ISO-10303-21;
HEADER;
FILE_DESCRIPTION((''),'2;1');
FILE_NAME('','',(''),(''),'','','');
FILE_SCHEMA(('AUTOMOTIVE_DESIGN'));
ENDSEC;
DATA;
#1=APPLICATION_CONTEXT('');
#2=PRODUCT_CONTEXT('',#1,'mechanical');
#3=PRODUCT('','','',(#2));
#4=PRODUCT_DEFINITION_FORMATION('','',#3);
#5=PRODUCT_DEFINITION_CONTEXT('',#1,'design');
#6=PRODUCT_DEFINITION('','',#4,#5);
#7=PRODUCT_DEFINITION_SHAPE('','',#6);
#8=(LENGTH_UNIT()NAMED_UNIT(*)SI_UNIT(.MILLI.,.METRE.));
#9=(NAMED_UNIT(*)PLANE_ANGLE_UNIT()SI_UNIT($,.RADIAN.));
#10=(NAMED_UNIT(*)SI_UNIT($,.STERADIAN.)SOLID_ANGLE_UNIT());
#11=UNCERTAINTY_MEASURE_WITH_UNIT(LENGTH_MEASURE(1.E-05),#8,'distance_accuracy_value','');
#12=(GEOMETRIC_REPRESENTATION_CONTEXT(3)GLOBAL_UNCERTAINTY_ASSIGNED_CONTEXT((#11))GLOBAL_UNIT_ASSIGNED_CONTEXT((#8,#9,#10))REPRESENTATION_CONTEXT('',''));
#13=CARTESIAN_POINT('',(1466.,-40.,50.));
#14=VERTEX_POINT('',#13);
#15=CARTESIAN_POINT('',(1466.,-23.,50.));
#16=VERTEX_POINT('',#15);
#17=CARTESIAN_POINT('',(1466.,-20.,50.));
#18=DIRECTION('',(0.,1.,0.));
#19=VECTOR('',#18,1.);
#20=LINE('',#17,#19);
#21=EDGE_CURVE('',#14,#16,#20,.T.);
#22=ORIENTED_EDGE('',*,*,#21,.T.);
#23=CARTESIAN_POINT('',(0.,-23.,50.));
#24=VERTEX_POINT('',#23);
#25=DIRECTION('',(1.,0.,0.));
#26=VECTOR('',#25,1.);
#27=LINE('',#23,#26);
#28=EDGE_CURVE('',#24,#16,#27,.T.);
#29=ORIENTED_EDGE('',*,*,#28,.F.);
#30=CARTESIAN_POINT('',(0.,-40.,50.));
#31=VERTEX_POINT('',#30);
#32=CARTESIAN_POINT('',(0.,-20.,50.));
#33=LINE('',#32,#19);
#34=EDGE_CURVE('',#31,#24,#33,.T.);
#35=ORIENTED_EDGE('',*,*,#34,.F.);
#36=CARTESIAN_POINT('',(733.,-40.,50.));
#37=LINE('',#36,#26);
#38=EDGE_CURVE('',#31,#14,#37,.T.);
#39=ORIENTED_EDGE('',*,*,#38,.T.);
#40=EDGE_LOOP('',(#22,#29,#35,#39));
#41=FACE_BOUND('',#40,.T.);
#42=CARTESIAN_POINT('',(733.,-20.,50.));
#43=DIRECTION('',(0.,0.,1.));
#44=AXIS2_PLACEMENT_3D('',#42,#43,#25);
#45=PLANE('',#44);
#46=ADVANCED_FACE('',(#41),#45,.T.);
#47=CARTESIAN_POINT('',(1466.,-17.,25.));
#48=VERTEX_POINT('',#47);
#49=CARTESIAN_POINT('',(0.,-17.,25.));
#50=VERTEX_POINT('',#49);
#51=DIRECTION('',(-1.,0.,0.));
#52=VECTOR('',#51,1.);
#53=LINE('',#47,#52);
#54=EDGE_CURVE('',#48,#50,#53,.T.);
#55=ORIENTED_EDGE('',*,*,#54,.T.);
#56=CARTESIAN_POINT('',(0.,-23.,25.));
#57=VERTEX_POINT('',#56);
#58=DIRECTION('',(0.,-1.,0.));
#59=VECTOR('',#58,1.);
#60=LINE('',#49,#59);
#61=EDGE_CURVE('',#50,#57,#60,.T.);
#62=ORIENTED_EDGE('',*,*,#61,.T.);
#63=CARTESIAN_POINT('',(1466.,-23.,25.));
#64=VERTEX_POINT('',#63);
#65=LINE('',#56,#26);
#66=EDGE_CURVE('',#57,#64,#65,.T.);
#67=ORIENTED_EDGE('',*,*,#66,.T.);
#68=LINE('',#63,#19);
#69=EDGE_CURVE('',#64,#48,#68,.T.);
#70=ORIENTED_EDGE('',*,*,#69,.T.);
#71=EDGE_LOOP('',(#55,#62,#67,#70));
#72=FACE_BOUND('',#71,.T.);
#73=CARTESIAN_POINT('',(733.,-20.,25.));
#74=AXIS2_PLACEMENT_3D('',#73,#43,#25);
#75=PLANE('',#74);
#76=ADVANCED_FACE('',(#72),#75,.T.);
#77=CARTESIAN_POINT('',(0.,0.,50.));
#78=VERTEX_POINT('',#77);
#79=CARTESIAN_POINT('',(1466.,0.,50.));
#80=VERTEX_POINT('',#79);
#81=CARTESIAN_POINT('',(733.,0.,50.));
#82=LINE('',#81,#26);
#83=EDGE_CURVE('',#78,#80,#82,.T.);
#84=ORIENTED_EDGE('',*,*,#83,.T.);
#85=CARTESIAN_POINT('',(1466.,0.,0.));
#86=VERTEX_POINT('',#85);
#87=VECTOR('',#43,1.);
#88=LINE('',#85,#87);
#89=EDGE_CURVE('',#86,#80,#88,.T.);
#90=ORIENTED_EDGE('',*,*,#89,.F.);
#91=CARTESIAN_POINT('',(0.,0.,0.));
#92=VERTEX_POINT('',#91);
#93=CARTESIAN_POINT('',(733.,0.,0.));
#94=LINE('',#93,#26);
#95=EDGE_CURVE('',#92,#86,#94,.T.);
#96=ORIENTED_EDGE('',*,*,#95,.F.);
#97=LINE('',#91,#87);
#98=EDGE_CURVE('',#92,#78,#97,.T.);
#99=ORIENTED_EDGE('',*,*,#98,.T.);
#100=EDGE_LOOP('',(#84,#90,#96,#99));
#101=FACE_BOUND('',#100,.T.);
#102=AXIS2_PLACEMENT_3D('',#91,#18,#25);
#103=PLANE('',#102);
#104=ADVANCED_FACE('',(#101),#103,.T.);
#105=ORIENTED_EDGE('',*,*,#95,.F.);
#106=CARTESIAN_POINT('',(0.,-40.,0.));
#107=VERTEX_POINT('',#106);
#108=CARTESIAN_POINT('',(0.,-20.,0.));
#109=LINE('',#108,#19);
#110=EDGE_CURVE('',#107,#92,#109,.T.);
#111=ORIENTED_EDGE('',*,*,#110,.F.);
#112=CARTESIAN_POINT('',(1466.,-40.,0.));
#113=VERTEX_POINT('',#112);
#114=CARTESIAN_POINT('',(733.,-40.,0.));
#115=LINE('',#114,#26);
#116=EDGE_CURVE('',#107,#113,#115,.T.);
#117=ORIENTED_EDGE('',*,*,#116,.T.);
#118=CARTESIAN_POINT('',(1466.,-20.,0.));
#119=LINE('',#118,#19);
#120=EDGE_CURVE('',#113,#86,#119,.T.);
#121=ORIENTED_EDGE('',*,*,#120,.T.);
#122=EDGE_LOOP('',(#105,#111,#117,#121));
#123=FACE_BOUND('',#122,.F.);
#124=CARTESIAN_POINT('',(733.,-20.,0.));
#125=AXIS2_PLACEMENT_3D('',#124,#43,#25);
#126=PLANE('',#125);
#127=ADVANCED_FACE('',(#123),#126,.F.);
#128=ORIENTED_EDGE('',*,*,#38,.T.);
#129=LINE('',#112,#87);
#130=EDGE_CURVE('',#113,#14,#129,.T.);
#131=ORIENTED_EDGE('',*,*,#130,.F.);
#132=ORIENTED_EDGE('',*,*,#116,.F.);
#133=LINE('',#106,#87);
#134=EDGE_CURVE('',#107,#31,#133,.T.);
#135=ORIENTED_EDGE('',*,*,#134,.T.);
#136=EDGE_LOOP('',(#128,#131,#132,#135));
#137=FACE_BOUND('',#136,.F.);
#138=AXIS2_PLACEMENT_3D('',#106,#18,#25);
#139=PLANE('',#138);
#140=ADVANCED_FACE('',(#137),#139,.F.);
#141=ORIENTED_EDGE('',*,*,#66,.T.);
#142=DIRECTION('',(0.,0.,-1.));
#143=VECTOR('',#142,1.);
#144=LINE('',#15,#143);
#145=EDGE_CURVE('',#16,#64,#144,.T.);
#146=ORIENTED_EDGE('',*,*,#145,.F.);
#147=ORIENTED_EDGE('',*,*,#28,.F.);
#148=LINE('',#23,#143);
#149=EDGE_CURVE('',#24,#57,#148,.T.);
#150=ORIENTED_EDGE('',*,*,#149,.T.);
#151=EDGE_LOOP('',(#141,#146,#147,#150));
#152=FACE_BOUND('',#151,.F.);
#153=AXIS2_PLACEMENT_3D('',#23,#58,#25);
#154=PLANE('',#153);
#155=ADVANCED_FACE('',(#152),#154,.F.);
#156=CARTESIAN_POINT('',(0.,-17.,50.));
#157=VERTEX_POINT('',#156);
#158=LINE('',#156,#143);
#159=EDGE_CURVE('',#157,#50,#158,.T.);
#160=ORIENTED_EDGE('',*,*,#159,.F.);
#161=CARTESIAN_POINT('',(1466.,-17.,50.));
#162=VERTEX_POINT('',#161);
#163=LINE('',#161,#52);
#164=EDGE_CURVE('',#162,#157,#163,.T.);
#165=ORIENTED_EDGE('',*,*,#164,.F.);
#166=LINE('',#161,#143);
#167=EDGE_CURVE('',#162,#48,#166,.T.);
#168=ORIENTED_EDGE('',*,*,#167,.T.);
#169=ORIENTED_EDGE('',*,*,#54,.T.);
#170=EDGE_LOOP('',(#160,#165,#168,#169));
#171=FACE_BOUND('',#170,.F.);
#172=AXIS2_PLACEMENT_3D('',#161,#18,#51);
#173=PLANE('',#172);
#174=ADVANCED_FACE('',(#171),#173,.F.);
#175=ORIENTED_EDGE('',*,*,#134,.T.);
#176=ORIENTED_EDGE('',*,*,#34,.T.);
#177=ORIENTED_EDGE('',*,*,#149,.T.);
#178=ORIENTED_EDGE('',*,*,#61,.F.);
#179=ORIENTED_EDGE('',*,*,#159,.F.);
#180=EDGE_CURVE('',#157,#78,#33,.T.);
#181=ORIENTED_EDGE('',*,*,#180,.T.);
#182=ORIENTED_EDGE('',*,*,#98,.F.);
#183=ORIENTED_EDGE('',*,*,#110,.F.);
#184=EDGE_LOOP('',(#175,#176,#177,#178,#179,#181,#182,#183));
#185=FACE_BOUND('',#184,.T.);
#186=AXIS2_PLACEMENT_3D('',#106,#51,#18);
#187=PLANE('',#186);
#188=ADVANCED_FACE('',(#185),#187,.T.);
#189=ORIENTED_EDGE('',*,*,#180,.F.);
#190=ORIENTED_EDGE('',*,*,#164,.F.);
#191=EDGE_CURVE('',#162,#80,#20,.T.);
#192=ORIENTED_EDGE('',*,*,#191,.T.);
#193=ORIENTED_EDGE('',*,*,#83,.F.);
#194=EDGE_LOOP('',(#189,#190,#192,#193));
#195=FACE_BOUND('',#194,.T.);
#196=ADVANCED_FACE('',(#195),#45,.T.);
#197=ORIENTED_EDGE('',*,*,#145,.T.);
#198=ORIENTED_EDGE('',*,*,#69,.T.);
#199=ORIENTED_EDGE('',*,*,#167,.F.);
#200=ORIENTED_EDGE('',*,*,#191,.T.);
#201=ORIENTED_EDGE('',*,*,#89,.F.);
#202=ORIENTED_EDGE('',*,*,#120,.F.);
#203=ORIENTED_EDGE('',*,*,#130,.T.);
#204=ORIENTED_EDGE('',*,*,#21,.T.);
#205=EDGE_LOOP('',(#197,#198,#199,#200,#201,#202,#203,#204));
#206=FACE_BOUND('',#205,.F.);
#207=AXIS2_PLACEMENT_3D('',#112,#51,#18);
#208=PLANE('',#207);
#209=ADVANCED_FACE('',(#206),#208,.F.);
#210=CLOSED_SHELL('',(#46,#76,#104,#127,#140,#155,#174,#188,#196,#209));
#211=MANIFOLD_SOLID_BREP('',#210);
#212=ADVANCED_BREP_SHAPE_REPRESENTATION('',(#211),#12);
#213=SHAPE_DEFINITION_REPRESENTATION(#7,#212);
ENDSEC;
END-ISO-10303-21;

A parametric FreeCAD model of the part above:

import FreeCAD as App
import Part
import Sketcher

V = App.Vector
Q = App.Units.Quantity


def add_polygon(sketch, points):
    """Adds a closed chain of lines whose ends are joined by coincident constraints."""
    first, n = sketch.GeometryCount, len(points)
    for a, b in zip(points, points[1:] + points[:1]):
        sketch.addGeometry(Part.LineSegment(App.Vector(*a, 0), App.Vector(*b, 0)), False)
    for i in range(n):
        sketch.addConstraint(Sketcher.Constraint("Coincident", first + i, 2, first + (i + 1) % n, 1))

doc = App.newDocument("Part")
body = doc.addObject("PartDesign::Body", "Body")

# Sketch on XY plane
sketch1 = body.newObject("Sketcher::SketchObject", "Sketch")
sketch1.AttachmentSupport = (doc.getObject("XY_Plane"), [""])
sketch1.MapMode = "FlatFace"
add_polygon(sketch1, [(0, 0), (0, -40), (1466, -40), (1466, 0)])  # lines 0-3
sketch1.addConstraint([
    Sketcher.Constraint("Vertical", 0),
    Sketcher.Constraint("Horizontal", 1),
    Sketcher.Constraint("Vertical", 2),
    Sketcher.Constraint("Horizontal", 3),
    Sketcher.Constraint("Coincident", 3, 2, -1, 1),
    Sketcher.Constraint("DistanceX", 1, 1, 1, 2, Q("1466 mm")),
    Sketcher.Constraint("DistanceY", 0, 2, 0, 1, Q("40 mm")),
])
pad1 = body.newObject("PartDesign::Pad", "Pad")
pad1.Profile = sketch1
pad1.Length = 50

# Sketch on XY plane
sketch2 = body.newObject("Sketcher::SketchObject", "Sketch001")
sketch2.AttachmentSupport = (doc.getObject("XY_Plane"), [""])
sketch2.MapMode = "FlatFace"
sketch2.AttachmentOffset = App.Placement(V(0, 0, 50), App.Rotation())
add_polygon(sketch2, [(0, -17), (0, -23), (1466, -23), (1466, -17)])  # lines 0-3
sketch2.addConstraint([
    Sketcher.Constraint("Vertical", 0),
    Sketcher.Constraint("Horizontal", 1),
    Sketcher.Constraint("Vertical", 2),
    Sketcher.Constraint("Horizontal", 3),
    Sketcher.Constraint("PointOnObject", 0, 2, -2),
    Sketcher.Constraint("DistanceX", 1, 1, 1, 2, Q("1466 mm")),
    Sketcher.Constraint("DistanceY", 0, 2, 0, 1, Q("6 mm")),
    Sketcher.Constraint("DistanceY", 0, 2, -1, 1, Q("23 mm")),
])
pocket1 = body.newObject("PartDesign::Pocket", "Pocket")
pocket1.Profile = sketch2
pocket1.Length = 25

doc.recompute()
